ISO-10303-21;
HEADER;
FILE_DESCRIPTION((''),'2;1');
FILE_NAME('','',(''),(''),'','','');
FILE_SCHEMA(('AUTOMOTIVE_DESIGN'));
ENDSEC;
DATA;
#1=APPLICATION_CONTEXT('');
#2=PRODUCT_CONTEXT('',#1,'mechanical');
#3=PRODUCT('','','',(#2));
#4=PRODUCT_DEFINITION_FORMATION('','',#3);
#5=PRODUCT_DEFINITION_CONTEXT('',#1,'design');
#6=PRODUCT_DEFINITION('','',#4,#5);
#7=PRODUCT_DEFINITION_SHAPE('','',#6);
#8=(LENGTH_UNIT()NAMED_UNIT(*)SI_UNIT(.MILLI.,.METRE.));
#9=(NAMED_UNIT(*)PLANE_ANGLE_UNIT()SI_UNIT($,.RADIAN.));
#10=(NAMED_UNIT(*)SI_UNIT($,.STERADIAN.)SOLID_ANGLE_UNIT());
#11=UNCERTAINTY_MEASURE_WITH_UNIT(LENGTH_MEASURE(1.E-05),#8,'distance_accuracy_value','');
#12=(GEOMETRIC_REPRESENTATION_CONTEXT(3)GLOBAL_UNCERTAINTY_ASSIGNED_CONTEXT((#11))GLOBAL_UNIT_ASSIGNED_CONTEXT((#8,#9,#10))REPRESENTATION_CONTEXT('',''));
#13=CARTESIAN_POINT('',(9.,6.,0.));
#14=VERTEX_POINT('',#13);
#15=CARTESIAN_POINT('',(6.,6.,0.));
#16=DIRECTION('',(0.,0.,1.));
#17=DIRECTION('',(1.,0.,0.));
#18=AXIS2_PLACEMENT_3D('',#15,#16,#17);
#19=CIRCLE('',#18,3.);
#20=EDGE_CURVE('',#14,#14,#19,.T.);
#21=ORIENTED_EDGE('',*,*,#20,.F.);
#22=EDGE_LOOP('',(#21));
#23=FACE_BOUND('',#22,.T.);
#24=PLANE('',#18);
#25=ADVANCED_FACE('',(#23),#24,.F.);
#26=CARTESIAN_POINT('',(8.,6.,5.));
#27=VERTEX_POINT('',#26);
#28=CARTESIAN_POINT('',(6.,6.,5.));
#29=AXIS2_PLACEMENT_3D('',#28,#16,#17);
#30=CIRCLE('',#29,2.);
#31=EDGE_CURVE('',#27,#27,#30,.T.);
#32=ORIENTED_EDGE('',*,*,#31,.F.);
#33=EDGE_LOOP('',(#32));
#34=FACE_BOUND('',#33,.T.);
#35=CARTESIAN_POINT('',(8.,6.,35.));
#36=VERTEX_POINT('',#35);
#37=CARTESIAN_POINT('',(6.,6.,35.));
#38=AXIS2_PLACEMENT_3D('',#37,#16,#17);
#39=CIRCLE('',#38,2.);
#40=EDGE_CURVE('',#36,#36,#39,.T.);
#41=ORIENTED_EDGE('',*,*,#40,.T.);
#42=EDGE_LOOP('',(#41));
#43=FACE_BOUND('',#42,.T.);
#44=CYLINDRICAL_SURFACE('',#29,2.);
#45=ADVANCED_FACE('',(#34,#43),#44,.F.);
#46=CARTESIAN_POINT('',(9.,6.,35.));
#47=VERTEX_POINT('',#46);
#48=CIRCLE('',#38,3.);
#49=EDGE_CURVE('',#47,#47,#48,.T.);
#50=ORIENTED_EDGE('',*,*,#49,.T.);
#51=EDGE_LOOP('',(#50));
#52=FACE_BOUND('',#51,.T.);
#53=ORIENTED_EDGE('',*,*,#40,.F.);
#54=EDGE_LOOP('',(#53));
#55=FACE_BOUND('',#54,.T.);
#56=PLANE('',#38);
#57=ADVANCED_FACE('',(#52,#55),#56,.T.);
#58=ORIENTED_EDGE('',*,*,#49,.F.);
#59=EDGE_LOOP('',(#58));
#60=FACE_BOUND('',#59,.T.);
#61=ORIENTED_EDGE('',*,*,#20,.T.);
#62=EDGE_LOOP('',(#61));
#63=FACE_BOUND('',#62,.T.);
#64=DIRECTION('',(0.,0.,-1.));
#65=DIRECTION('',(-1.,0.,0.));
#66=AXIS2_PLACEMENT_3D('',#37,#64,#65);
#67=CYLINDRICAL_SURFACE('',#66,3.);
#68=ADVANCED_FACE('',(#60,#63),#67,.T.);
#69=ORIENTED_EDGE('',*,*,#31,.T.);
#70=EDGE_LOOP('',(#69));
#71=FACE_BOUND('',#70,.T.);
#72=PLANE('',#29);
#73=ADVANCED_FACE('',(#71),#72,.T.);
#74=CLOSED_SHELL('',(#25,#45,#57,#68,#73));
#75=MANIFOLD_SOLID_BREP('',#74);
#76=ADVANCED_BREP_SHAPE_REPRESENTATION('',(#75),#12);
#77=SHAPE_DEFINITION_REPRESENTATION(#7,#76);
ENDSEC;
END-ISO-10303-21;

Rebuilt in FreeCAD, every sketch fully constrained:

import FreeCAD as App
import Part
import Sketcher
Q = App.Units.Quantity

doc = App.newDocument("Part")
body = doc.addObject("PartDesign::Body", "Body")

sketch1 = doc.addObject("Sketcher::SketchObject", "Sketch")
body.addObject(sketch1)
sketch1.AttachmentSupport = (doc.XY_Plane, [""])
sketch1.MapMode = "FlatFace"
sketch1.addGeometry(Part.Circle(App.Vector(6, 6, 0), App.Vector(0, 0, 1), 3), False)
sketch1.addConstraint(Sketcher.Constraint("Diameter", 0, Q("6 mm")))
sketch1.addConstraint(Sketcher.Constraint("DistanceX", -1, 1, 0, 3, Q("6 mm")))
sketch1.addConstraint(Sketcher.Constraint("DistanceY", -1, 1, 0, 3, Q("6 mm")))
pad1 = doc.addObject("PartDesign::Pad", "Pad")
body.addObject(pad1)
pad1.Profile = sketch1
pad1.Length = 35

sketch2 = doc.addObject("Sketcher::SketchObject", "Sketch001")
body.addObject(sketch2)
sketch2.AttachmentSupport = (doc.XY_Plane, [""])
sketch2.MapMode = "FlatFace"
sketch2.AttachmentOffset = App.Placement(App.Vector(0, 0, 35), App.Rotation())
sketch2.addGeometry(Part.Circle(App.Vector(6, 6, 0), App.Vector(0, 0, 1), 2), False)
sketch2.addConstraint(Sketcher.Constraint("Diameter", 0, Q("4 mm")))
sketch2.addConstraint(Sketcher.Constraint("DistanceX", -1, 1, 0, 3, Q("6 mm")))
sketch2.addConstraint(Sketcher.Constraint("DistanceY", -1, 1, 0, 3, Q("6 mm")))
pocket1 = doc.addObject("PartDesign::Pocket", "Pocket")
body.addObject(pocket1)
pocket1.Profile = sketch2
pocket1.Length = 30

doc.recompute()
